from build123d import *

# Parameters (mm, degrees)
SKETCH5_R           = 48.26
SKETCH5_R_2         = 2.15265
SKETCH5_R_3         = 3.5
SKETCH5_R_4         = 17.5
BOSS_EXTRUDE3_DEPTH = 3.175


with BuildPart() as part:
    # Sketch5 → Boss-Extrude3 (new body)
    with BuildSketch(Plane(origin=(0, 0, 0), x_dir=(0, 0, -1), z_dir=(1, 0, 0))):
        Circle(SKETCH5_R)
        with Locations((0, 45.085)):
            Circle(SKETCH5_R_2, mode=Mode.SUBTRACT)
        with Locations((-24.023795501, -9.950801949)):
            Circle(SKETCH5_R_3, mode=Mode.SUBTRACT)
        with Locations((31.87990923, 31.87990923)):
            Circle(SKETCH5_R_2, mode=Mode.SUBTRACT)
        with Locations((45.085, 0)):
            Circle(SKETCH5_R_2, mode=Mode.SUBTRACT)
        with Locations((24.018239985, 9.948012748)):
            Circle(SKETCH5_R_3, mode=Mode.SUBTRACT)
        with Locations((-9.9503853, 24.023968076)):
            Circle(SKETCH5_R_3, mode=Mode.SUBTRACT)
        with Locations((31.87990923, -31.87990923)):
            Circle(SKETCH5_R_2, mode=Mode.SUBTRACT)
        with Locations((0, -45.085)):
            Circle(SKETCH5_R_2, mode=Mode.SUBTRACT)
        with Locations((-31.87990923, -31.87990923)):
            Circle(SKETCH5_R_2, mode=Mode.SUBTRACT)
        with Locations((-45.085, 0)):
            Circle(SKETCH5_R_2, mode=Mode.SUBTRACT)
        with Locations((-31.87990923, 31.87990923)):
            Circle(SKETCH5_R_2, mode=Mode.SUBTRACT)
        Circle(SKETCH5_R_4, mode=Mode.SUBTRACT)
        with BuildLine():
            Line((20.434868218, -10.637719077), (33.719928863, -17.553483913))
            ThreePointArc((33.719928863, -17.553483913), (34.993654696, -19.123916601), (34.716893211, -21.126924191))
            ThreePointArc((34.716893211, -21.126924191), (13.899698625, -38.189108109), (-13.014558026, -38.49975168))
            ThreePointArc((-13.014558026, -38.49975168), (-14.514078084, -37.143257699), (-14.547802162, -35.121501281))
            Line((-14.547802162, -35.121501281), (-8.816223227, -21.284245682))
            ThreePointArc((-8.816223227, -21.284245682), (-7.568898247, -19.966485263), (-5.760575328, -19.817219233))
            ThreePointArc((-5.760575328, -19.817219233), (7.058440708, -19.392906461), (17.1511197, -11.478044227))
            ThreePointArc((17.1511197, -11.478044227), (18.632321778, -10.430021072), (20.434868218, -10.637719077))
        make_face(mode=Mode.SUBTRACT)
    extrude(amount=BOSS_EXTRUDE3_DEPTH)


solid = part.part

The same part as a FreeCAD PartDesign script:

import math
import FreeCAD as App
import Part
import Sketcher
Q = App.Units.Quantity

doc = App.newDocument("Part")
body = doc.addObject("PartDesign::Body", "Body")

# Sketch on YZ plane
sketch1 = body.newObject("Sketcher::SketchObject", "Sketch")
sketch1.AttachmentSupport = (doc.getObject("YZ_Plane"), [""])
sketch1.MapMode = "FlatFace"
sketch1.addGeometry([
    Part.Circle(App.Vector(0, 0, 0), App.Vector(0, 0, 1), 48.3),  # 0
    Part.Circle(App.Vector(-31.9, 31.9, 0), App.Vector(0, 0, 1), 2.2),  # 1
    Part.Circle(App.Vector(-10, 24, 0), App.Vector(0, 0, 1), 3.5),  # 2
    Part.Circle(App.Vector(-45.1, 0, 0), App.Vector(0, 0, 1), 2.2),  # 3
    Part.ArcOfCircle(Part.Circle(App.Vector(-12.9, -19.3, 0), App.Vector(0, 0, 1), 2.5), math.radians(-28), math.radians(56)),  # 4
    Part.LineSegment(App.Vector(-10.6, -20.4, 0), App.Vector(-17.6, -33.7, 0)),  # 5
    Part.ArcOfCircle(Part.Circle(App.Vector(-19.8, -32.5, 0), App.Vector(0, 0, 1), 2.5), math.radians(-121), math.radians(-27)),  # 6
    Part.ArcOfCircle(Part.Circle(App.Vector(0, 0, 0), App.Vector(0, 0, 1), 40.6), math.radians(161), math.radians(239)),  # 7
    Part.ArcOfCircle(Part.Circle(App.Vector(-36.1, 12.2, 0), App.Vector(0, 0, 1), 2.5), math.radians(68), math.radians(161)),  # 8
    Part.LineSegment(App.Vector(-35.1, 14.5, 0), App.Vector(-21.3, 8.8, 0)),  # 9
    Part.ArcOfCircle(Part.Circle(App.Vector(-22.3, 6.5, 0), App.Vector(0, 0, 1), 2.5), math.radians(-16), math.radians(67)),  # 10
    Part.ArcOfCircle(Part.Circle(App.Vector(0, 0, 0), App.Vector(0, 0, 1), 20.6), math.radians(164), math.radians(236)),  # 11
    Part.Circle(App.Vector(-31.9, -31.9, 0), App.Vector(0, 0, 1), 2.2),  # 12
    Part.Circle(App.Vector(0, 45.1, 0), App.Vector(0, 0, 1), 2.2),  # 13
    Part.Circle(App.Vector(31.9, 31.9, 0), App.Vector(0, 0, 1), 2.2),  # 14
    Part.Circle(App.Vector(24, 10, 0), App.Vector(0, 0, 1), 3.5),  # 15
    Part.Circle(App.Vector(0, 0, 0), App.Vector(0, 0, 1), 17.5),  # 16
    Part.Circle(App.Vector(9.9, -24, 0), App.Vector(0, 0, 1), 3.5),  # 17
    Part.Circle(App.Vector(0, -45.1, 0), App.Vector(0, 0, 1), 2.2),  # 18
    Part.Circle(App.Vector(45.1, 0, 0), App.Vector(0, 0, 1), 2.2),  # 19
    Part.Circle(App.Vector(31.9, -31.9, 0), App.Vector(0, 0, 1), 2.2),  # 20
], False)
sketch1.addConstraint([
    Sketcher.Constraint("Tangent", 4, 1, 5, 1),
    Sketcher.Constraint("Tangent", 5, 2, 6, 2),
    Sketcher.Constraint("Tangent", 6, 1, 7, 2),
    Sketcher.Constraint("Tangent", 7, 1, 8, 2),
    Sketcher.Constraint("Tangent", 8, 1, 9, 1),
    Sketcher.Constraint("Tangent", 9, 2, 10, 2),
    Sketcher.Constraint("Tangent", 10, 1, 11, 1),
    Sketcher.Constraint("Tangent", 11, 2, 4, 2),
    Sketcher.Constraint("Coincident", 0, 3, -1, 1),
    Sketcher.Constraint("Coincident", 7, 3, -1, 1),
    Sketcher.Constraint("Coincident", 11, 3, -1, 1),
    Sketcher.Constraint("Coincident", 16, 3, -1, 1),
    Sketcher.Constraint("Equal", 1, 3),
    Sketcher.Constraint("Equal", 4, 6),
    Sketcher.Constraint("Equal", 6, 8),
    Sketcher.Constraint("Equal", 8, 10),
    Sketcher.Constraint("Equal", 3, 12),
    Sketcher.Constraint("Equal", 12, 13),
    Sketcher.Constraint("Equal", 13, 14),
    Sketcher.Constraint("Equal", 2, 15),
    Sketcher.Constraint("Equal", 15, 17),
    Sketcher.Constraint("Equal", 14, 18),
    Sketcher.Constraint("Equal", 18, 19),
    Sketcher.Constraint("Equal", 19, 20),
    Sketcher.Constraint("Symmetric", 12, 3, 14, 3, -1, 1),
    Sketcher.Constraint("Symmetric", 13, 3, 18, 3, -1, 1),
    Sketcher.Constraint("Symmetric", 3, 3, 19, 3, -1, 1),
    Sketcher.Constraint("Symmetric", 1, 3, 20, 3, -1, 1),
    Sketcher.Constraint("Symmetric", 1, 3, 14, 3, -2),
    Sketcher.Constraint("PointOnObject", 3, 3, -1),
    Sketcher.Constraint("PointOnObject", 13, 3, -2),
    Sketcher.Constraint("Equal", 5, 9),
    Sketcher.Constraint("Diameter", 0, Q("3.8 in")),
    Sketcher.Constraint("Radius", 4, Q("0.1 in")),
    Sketcher.Constraint("Radius", 7, Q("1.6 in")),
    Sketcher.Constraint("Radius", 11, Q("0.8125 in")),
    Sketcher.Constraint("Diameter", 1, Q("0.1695 in")),
    Sketcher.Constraint("Angle", 5, Q("-117.5 deg")),
    Sketcher.Constraint("Angle", 9, Q("-22.5 deg")),
    Sketcher.Constraint("Diameter", 2, 7.0),
    Sketcher.Constraint("Diameter", 16, 35.0),
    Sketcher.Constraint("DistanceX", 3, 3, -1, 1, Q("1.775 in")),
    Sketcher.Constraint("DistanceY", -1, 1, 13, 3, Q("1.775 in")),
    Sketcher.Constraint("DistanceY", 17, 3, -1, 1, Q("0.9456 in")),
    Sketcher.Constraint("DistanceY", 6, 3, 2, 3, Q("2.2272001 in")),
    Sketcher.Constraint("DistanceX", 2, 3, -1, 1, 9.950802),
    Sketcher.Constraint("DistanceX", 8, 1, -1, 1, 35.121501),
    Sketcher.Constraint("DistanceX", 1, 3, -1, 1, 31.879909),
    Sketcher.Constraint("DistanceY", -1, 1, 1, 3, 31.879909),
    Sketcher.Constraint("DistanceX", -1, 1, 15, 3, 24.023968),
    Sketcher.Constraint("DistanceY", 15, 3, 2, 3, 14.07341),
    Sketcher.Constraint("DistanceX", 4, 3, 17, 3, 22.838739),
])
pad1 = body.newObject("PartDesign::Pad", "Pad")
pad1.Profile = sketch1
pad1.Length = Q("0.125 in")

doc.recompute()
